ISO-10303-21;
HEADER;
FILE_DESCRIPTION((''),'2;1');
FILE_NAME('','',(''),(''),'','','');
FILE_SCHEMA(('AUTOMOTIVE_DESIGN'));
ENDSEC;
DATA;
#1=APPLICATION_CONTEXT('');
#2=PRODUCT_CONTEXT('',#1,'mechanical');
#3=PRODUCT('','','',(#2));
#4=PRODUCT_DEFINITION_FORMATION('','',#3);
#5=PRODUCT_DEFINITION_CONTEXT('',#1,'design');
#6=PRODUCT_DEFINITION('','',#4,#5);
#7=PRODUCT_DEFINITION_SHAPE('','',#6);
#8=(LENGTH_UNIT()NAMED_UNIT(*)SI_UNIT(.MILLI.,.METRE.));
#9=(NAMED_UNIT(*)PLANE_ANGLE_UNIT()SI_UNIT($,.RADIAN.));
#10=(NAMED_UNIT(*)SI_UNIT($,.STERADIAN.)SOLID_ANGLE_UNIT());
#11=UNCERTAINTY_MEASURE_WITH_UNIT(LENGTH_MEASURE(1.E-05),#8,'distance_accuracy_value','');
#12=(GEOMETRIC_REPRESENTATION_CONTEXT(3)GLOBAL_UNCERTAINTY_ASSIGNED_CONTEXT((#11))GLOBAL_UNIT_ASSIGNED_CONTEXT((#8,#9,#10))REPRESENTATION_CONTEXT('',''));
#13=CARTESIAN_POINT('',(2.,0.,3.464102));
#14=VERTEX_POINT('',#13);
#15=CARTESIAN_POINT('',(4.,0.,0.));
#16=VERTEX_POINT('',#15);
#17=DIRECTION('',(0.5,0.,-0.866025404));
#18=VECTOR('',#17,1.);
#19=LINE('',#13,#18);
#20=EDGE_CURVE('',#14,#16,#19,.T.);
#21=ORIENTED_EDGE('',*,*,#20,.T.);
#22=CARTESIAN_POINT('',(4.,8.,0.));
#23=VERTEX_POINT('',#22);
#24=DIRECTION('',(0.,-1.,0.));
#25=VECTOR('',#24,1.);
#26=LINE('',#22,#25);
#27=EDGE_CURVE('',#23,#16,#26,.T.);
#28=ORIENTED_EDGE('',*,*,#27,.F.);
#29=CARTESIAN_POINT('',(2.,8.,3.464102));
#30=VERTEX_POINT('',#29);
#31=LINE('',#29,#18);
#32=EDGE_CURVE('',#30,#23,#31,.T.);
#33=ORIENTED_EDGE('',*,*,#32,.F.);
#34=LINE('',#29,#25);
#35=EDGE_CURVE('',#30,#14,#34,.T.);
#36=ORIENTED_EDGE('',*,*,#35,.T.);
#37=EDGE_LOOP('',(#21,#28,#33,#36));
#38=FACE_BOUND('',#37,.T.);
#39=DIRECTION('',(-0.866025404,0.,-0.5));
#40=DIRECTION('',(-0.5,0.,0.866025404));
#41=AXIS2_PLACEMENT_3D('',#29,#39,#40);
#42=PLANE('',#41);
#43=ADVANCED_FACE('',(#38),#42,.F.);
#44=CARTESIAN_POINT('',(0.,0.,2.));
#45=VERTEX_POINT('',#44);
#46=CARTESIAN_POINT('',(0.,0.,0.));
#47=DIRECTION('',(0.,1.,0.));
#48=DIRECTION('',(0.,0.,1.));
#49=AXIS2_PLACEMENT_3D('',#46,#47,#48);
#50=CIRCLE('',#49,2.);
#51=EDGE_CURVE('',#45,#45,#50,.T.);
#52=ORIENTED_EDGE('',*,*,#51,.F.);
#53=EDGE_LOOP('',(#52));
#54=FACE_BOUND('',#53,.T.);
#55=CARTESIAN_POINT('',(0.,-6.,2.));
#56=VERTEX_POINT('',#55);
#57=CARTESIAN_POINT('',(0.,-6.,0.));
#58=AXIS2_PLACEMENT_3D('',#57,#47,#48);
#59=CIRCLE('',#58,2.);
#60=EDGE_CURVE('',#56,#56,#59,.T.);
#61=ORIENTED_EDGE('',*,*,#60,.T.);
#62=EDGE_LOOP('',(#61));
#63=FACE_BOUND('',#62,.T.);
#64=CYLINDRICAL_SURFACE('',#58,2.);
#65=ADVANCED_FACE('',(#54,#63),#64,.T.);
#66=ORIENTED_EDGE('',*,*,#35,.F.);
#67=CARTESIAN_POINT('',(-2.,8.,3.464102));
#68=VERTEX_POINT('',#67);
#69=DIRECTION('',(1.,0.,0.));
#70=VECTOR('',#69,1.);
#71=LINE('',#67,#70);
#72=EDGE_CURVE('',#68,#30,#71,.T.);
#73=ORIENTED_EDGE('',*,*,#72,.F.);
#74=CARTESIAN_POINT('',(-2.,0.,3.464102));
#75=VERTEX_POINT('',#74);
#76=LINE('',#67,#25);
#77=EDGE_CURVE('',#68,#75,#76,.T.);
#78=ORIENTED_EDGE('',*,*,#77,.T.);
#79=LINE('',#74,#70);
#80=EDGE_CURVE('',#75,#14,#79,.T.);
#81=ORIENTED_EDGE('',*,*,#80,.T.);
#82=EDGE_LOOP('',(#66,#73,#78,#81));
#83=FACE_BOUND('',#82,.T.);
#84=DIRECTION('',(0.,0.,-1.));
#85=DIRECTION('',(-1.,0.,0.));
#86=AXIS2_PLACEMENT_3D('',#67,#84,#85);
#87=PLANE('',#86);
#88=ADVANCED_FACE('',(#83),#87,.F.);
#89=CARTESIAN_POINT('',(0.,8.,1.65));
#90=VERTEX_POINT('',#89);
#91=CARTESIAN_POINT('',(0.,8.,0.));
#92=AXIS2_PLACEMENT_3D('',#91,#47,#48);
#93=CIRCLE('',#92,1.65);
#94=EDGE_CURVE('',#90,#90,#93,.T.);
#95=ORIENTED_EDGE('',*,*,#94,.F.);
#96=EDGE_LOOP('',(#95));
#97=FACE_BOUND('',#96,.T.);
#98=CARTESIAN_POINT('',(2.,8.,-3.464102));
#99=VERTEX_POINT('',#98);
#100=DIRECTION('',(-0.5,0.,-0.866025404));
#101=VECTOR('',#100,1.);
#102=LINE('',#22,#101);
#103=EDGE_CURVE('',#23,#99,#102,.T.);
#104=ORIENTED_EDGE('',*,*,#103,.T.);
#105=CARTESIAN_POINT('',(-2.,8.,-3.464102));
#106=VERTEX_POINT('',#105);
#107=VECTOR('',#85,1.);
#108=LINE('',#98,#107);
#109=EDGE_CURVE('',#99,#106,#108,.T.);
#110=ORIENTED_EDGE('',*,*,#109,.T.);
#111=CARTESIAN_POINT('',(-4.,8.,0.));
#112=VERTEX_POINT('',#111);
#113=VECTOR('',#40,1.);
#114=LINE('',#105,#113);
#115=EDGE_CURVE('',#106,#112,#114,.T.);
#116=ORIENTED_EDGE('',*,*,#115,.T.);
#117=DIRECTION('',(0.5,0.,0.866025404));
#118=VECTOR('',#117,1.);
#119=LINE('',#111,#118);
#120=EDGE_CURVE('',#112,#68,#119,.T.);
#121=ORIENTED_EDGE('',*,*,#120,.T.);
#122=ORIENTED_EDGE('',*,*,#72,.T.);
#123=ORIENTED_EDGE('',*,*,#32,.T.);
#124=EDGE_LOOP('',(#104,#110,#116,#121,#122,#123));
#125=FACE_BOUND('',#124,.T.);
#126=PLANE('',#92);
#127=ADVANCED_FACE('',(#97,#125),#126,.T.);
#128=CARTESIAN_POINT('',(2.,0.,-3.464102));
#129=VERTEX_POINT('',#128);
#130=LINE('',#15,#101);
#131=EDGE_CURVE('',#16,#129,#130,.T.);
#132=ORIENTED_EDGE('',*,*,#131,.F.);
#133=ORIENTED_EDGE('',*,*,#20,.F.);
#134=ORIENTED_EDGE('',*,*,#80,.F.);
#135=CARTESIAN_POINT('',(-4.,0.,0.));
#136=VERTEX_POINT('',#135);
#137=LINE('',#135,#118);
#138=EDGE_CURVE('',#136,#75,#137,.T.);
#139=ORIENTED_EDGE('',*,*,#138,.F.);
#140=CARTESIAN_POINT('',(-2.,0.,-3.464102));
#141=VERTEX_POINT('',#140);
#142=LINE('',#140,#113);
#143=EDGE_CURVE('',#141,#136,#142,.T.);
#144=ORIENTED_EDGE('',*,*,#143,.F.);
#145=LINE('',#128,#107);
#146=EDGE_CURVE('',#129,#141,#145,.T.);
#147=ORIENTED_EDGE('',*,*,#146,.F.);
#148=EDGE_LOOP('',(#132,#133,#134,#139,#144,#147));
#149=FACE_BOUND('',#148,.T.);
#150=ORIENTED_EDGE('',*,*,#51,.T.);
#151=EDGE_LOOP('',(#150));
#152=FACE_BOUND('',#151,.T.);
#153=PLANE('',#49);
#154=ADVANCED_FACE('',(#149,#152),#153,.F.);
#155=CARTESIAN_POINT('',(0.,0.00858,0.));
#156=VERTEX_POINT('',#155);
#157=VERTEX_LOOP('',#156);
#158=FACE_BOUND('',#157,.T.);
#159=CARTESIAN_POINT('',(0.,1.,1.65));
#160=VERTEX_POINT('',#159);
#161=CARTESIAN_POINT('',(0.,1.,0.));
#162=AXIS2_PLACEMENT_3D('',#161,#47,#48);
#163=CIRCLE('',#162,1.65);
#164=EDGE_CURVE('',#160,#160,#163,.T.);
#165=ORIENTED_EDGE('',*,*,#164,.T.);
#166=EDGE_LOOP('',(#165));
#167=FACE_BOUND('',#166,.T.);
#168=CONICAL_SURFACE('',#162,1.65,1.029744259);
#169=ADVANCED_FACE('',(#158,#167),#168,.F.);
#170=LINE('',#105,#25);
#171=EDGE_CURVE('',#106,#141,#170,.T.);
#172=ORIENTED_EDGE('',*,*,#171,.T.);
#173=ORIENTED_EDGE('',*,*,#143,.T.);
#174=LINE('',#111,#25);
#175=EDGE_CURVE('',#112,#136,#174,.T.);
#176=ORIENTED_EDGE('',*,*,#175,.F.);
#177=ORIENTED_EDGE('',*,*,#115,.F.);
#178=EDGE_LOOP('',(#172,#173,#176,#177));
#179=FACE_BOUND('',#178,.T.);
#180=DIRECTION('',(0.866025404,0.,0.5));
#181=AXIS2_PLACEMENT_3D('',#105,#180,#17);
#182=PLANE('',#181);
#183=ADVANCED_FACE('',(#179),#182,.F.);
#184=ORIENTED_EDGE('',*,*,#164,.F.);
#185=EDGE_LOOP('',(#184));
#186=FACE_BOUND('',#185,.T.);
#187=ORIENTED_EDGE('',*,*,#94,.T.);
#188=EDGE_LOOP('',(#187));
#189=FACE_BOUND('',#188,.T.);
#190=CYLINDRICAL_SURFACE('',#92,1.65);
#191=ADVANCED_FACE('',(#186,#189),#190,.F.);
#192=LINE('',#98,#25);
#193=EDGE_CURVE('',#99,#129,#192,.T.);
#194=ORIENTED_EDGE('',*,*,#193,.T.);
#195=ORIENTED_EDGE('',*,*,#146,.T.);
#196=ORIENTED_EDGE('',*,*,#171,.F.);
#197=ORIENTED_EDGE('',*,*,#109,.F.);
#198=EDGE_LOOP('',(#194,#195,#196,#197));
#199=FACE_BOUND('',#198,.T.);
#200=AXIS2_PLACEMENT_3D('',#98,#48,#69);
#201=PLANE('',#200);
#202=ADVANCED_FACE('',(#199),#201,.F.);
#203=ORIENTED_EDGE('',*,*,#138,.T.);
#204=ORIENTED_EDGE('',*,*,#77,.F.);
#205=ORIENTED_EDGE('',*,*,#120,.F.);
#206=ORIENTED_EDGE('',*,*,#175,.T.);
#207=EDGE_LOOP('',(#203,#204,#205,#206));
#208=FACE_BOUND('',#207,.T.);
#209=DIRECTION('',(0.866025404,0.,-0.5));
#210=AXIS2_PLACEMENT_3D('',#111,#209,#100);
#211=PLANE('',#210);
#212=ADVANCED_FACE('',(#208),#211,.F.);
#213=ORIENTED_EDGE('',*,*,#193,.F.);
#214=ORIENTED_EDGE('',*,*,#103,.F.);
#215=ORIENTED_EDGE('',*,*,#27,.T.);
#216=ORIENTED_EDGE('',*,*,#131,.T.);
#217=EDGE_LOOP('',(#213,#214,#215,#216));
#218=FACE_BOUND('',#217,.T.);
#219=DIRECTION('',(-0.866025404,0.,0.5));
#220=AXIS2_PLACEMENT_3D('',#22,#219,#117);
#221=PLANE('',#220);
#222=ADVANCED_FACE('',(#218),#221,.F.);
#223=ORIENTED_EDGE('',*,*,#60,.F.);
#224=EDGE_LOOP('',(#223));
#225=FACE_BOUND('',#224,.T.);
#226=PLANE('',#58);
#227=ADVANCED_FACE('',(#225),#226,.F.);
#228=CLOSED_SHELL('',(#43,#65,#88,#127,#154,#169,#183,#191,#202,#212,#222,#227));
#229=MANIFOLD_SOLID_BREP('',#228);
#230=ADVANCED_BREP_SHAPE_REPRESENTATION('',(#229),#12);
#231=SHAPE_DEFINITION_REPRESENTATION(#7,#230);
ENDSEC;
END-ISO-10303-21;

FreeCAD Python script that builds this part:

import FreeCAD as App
import Part
import Sketcher

V = App.Vector
Q = App.Units.Quantity

doc = App.newDocument("Part")
params = doc.addObject("Spreadsheet::Sheet", "Params")
for row, (alias, value) in enumerate([
    ("sketch1_diameter", "4 mm"),
    ("pad1_length", "6 mm"),
    ("sketch2_width", "4 mm"),
    ("sketch2_length", "4 mm"),
    ("pad2_length", "8 mm"),
    ("sketch3_diameter", "3.3 mm"),
    ("hole_diameter", "3.3 mm"),
    ("hole_depth", "7 mm"),
], start=1):
    params.set(f"A{row}", alias)
    params.set(f"B{row}", "=" + value)
    params.setAlias(f"B{row}", alias)

body = doc.addObject("PartDesign::Body", "Body")

sketch1 = body.newObject("Sketcher::SketchObject", "Sketch")
sketch1.AttachmentSupport = (doc.getObject("XZ_Plane"), [""])
sketch1.MapMode = "FlatFace"
sketch1.addGeometry(Part.Circle(V(0, 0, 0), V(0, 0, 1), 2), False)
sketch1.addConstraint(Sketcher.Constraint("Coincident", 0, 3, -1, 1))
sketch1.addConstraint(Sketcher.Constraint("Diameter", 0, 4.0))
sketch1.setExpression("Constraints[1]", "Params.sketch1_diameter")
pad1 = body.newObject("PartDesign::Pad", "Pad")
pad1.Profile = sketch1
pad1.setExpression("Length", "Params.pad1_length")

sketch2 = body.newObject("Sketcher::SketchObject", "Sketch001")
sketch2.AttachmentSupport = (doc.getObject("XZ_Plane"), [""])
sketch2.MapMode = "FlatFace"
sketch2.addGeometry(Part.LineSegment(V(4, 0, 0), V(2, -3.5, 0)), False)
sketch2.addGeometry(Part.LineSegment(V(2, -3.5, 0), V(-2, -3.5, 0)), False)
sketch2.addGeometry(Part.LineSegment(V(-2, -3.5, 0), V(-4, 0, 0)), False)
sketch2.addGeometry(Part.LineSegment(V(-4, 0, 0), V(-2, 3.5, 0)), False)
sketch2.addGeometry(Part.LineSegment(V(-2, 3.5, 0), V(2, 3.5, 0)), False)
sketch2.addGeometry(Part.LineSegment(V(2, 3.5, 0), V(4, 0, 0)), False)
sketch2.addConstraint(Sketcher.Constraint("Coincident", 0, 2, 1, 1))
sketch2.addConstraint(Sketcher.Constraint("Coincident", 1, 2, 2, 1))
sketch2.addConstraint(Sketcher.Constraint("Coincident", 2, 2, 3, 1))
sketch2.addConstraint(Sketcher.Constraint("Coincident", 3, 2, 4, 1))
sketch2.addConstraint(Sketcher.Constraint("Coincident", 4, 2, 5, 1))
sketch2.addConstraint(Sketcher.Constraint("Coincident", 5, 2, 0, 1))
sketch2.addConstraint(Sketcher.Constraint("Horizontal", 1))
sketch2.addConstraint(Sketcher.Constraint("Horizontal", 4))
sketch2.addConstraint(Sketcher.Constraint("Symmetric", 0, 2, 3, 2, -1, 1))
sketch2.addConstraint(Sketcher.Constraint("Symmetric", 2, 2, 5, 2, -1, 1))
sketch2.addConstraint(Sketcher.Constraint("PointOnObject", 2, 2, -1))
sketch2.addConstraint(Sketcher.Constraint("Parallel", 2, 5))
sketch2.addConstraint(Sketcher.Constraint("Vertical", 1, 2, 3, 2))
sketch2.addConstraint(Sketcher.Constraint("DistanceX", 1, 2, 1, 1, 4.0))
sketch2.addConstraint(Sketcher.Constraint("Angle", 0, Q("-120 deg")))
sketch2.addConstraint(Sketcher.Constraint("Distance", 0, 4.0))
sketch2.setExpression("Constraints[13]", "Params.sketch2_width")
sketch2.setExpression("Constraints[15]", "Params.sketch2_length")
pad2 = body.newObject("PartDesign::Pad", "Pad001")
pad2.Profile = sketch2
pad2.setExpression("Length", "Params.pad2_length")
pad2.Reversed = True

sketch3 = body.newObject("Sketcher::SketchObject", "Sketch002")
sketch3.AttachmentSupport = (doc.getObject("XZ_Plane"), [""])
sketch3.MapMode = "FlatFace"
sketch3.AttachmentOffset = App.Placement(V(0, 0, -8), App.Rotation())
sketch3.addGeometry(Part.Circle(V(0, 0, 0), V(0, 0, 1), 1.6), False)
sketch3.addConstraint(Sketcher.Constraint("Coincident", 0, 3, -1, 1))
sketch3.addConstraint(Sketcher.Constraint("Diameter", 0, 3.3))
sketch3.setExpression("Constraints[1]", "Params.sketch3_diameter")
doc.recompute()
hole = body.newObject("PartDesign::Hole", "Hole")
hole.Profile = sketch3
hole.ThreadType = "None"
hole.setExpression("Diameter", "Params.hole_diameter")
hole.DepthType = "Dimension"
hole.setExpression("Depth", "Params.hole_depth")
hole.DrillPoint = "Angled"
hole.DrillPointAngle = 118
hole.Reversed = True

doc.recompute()
